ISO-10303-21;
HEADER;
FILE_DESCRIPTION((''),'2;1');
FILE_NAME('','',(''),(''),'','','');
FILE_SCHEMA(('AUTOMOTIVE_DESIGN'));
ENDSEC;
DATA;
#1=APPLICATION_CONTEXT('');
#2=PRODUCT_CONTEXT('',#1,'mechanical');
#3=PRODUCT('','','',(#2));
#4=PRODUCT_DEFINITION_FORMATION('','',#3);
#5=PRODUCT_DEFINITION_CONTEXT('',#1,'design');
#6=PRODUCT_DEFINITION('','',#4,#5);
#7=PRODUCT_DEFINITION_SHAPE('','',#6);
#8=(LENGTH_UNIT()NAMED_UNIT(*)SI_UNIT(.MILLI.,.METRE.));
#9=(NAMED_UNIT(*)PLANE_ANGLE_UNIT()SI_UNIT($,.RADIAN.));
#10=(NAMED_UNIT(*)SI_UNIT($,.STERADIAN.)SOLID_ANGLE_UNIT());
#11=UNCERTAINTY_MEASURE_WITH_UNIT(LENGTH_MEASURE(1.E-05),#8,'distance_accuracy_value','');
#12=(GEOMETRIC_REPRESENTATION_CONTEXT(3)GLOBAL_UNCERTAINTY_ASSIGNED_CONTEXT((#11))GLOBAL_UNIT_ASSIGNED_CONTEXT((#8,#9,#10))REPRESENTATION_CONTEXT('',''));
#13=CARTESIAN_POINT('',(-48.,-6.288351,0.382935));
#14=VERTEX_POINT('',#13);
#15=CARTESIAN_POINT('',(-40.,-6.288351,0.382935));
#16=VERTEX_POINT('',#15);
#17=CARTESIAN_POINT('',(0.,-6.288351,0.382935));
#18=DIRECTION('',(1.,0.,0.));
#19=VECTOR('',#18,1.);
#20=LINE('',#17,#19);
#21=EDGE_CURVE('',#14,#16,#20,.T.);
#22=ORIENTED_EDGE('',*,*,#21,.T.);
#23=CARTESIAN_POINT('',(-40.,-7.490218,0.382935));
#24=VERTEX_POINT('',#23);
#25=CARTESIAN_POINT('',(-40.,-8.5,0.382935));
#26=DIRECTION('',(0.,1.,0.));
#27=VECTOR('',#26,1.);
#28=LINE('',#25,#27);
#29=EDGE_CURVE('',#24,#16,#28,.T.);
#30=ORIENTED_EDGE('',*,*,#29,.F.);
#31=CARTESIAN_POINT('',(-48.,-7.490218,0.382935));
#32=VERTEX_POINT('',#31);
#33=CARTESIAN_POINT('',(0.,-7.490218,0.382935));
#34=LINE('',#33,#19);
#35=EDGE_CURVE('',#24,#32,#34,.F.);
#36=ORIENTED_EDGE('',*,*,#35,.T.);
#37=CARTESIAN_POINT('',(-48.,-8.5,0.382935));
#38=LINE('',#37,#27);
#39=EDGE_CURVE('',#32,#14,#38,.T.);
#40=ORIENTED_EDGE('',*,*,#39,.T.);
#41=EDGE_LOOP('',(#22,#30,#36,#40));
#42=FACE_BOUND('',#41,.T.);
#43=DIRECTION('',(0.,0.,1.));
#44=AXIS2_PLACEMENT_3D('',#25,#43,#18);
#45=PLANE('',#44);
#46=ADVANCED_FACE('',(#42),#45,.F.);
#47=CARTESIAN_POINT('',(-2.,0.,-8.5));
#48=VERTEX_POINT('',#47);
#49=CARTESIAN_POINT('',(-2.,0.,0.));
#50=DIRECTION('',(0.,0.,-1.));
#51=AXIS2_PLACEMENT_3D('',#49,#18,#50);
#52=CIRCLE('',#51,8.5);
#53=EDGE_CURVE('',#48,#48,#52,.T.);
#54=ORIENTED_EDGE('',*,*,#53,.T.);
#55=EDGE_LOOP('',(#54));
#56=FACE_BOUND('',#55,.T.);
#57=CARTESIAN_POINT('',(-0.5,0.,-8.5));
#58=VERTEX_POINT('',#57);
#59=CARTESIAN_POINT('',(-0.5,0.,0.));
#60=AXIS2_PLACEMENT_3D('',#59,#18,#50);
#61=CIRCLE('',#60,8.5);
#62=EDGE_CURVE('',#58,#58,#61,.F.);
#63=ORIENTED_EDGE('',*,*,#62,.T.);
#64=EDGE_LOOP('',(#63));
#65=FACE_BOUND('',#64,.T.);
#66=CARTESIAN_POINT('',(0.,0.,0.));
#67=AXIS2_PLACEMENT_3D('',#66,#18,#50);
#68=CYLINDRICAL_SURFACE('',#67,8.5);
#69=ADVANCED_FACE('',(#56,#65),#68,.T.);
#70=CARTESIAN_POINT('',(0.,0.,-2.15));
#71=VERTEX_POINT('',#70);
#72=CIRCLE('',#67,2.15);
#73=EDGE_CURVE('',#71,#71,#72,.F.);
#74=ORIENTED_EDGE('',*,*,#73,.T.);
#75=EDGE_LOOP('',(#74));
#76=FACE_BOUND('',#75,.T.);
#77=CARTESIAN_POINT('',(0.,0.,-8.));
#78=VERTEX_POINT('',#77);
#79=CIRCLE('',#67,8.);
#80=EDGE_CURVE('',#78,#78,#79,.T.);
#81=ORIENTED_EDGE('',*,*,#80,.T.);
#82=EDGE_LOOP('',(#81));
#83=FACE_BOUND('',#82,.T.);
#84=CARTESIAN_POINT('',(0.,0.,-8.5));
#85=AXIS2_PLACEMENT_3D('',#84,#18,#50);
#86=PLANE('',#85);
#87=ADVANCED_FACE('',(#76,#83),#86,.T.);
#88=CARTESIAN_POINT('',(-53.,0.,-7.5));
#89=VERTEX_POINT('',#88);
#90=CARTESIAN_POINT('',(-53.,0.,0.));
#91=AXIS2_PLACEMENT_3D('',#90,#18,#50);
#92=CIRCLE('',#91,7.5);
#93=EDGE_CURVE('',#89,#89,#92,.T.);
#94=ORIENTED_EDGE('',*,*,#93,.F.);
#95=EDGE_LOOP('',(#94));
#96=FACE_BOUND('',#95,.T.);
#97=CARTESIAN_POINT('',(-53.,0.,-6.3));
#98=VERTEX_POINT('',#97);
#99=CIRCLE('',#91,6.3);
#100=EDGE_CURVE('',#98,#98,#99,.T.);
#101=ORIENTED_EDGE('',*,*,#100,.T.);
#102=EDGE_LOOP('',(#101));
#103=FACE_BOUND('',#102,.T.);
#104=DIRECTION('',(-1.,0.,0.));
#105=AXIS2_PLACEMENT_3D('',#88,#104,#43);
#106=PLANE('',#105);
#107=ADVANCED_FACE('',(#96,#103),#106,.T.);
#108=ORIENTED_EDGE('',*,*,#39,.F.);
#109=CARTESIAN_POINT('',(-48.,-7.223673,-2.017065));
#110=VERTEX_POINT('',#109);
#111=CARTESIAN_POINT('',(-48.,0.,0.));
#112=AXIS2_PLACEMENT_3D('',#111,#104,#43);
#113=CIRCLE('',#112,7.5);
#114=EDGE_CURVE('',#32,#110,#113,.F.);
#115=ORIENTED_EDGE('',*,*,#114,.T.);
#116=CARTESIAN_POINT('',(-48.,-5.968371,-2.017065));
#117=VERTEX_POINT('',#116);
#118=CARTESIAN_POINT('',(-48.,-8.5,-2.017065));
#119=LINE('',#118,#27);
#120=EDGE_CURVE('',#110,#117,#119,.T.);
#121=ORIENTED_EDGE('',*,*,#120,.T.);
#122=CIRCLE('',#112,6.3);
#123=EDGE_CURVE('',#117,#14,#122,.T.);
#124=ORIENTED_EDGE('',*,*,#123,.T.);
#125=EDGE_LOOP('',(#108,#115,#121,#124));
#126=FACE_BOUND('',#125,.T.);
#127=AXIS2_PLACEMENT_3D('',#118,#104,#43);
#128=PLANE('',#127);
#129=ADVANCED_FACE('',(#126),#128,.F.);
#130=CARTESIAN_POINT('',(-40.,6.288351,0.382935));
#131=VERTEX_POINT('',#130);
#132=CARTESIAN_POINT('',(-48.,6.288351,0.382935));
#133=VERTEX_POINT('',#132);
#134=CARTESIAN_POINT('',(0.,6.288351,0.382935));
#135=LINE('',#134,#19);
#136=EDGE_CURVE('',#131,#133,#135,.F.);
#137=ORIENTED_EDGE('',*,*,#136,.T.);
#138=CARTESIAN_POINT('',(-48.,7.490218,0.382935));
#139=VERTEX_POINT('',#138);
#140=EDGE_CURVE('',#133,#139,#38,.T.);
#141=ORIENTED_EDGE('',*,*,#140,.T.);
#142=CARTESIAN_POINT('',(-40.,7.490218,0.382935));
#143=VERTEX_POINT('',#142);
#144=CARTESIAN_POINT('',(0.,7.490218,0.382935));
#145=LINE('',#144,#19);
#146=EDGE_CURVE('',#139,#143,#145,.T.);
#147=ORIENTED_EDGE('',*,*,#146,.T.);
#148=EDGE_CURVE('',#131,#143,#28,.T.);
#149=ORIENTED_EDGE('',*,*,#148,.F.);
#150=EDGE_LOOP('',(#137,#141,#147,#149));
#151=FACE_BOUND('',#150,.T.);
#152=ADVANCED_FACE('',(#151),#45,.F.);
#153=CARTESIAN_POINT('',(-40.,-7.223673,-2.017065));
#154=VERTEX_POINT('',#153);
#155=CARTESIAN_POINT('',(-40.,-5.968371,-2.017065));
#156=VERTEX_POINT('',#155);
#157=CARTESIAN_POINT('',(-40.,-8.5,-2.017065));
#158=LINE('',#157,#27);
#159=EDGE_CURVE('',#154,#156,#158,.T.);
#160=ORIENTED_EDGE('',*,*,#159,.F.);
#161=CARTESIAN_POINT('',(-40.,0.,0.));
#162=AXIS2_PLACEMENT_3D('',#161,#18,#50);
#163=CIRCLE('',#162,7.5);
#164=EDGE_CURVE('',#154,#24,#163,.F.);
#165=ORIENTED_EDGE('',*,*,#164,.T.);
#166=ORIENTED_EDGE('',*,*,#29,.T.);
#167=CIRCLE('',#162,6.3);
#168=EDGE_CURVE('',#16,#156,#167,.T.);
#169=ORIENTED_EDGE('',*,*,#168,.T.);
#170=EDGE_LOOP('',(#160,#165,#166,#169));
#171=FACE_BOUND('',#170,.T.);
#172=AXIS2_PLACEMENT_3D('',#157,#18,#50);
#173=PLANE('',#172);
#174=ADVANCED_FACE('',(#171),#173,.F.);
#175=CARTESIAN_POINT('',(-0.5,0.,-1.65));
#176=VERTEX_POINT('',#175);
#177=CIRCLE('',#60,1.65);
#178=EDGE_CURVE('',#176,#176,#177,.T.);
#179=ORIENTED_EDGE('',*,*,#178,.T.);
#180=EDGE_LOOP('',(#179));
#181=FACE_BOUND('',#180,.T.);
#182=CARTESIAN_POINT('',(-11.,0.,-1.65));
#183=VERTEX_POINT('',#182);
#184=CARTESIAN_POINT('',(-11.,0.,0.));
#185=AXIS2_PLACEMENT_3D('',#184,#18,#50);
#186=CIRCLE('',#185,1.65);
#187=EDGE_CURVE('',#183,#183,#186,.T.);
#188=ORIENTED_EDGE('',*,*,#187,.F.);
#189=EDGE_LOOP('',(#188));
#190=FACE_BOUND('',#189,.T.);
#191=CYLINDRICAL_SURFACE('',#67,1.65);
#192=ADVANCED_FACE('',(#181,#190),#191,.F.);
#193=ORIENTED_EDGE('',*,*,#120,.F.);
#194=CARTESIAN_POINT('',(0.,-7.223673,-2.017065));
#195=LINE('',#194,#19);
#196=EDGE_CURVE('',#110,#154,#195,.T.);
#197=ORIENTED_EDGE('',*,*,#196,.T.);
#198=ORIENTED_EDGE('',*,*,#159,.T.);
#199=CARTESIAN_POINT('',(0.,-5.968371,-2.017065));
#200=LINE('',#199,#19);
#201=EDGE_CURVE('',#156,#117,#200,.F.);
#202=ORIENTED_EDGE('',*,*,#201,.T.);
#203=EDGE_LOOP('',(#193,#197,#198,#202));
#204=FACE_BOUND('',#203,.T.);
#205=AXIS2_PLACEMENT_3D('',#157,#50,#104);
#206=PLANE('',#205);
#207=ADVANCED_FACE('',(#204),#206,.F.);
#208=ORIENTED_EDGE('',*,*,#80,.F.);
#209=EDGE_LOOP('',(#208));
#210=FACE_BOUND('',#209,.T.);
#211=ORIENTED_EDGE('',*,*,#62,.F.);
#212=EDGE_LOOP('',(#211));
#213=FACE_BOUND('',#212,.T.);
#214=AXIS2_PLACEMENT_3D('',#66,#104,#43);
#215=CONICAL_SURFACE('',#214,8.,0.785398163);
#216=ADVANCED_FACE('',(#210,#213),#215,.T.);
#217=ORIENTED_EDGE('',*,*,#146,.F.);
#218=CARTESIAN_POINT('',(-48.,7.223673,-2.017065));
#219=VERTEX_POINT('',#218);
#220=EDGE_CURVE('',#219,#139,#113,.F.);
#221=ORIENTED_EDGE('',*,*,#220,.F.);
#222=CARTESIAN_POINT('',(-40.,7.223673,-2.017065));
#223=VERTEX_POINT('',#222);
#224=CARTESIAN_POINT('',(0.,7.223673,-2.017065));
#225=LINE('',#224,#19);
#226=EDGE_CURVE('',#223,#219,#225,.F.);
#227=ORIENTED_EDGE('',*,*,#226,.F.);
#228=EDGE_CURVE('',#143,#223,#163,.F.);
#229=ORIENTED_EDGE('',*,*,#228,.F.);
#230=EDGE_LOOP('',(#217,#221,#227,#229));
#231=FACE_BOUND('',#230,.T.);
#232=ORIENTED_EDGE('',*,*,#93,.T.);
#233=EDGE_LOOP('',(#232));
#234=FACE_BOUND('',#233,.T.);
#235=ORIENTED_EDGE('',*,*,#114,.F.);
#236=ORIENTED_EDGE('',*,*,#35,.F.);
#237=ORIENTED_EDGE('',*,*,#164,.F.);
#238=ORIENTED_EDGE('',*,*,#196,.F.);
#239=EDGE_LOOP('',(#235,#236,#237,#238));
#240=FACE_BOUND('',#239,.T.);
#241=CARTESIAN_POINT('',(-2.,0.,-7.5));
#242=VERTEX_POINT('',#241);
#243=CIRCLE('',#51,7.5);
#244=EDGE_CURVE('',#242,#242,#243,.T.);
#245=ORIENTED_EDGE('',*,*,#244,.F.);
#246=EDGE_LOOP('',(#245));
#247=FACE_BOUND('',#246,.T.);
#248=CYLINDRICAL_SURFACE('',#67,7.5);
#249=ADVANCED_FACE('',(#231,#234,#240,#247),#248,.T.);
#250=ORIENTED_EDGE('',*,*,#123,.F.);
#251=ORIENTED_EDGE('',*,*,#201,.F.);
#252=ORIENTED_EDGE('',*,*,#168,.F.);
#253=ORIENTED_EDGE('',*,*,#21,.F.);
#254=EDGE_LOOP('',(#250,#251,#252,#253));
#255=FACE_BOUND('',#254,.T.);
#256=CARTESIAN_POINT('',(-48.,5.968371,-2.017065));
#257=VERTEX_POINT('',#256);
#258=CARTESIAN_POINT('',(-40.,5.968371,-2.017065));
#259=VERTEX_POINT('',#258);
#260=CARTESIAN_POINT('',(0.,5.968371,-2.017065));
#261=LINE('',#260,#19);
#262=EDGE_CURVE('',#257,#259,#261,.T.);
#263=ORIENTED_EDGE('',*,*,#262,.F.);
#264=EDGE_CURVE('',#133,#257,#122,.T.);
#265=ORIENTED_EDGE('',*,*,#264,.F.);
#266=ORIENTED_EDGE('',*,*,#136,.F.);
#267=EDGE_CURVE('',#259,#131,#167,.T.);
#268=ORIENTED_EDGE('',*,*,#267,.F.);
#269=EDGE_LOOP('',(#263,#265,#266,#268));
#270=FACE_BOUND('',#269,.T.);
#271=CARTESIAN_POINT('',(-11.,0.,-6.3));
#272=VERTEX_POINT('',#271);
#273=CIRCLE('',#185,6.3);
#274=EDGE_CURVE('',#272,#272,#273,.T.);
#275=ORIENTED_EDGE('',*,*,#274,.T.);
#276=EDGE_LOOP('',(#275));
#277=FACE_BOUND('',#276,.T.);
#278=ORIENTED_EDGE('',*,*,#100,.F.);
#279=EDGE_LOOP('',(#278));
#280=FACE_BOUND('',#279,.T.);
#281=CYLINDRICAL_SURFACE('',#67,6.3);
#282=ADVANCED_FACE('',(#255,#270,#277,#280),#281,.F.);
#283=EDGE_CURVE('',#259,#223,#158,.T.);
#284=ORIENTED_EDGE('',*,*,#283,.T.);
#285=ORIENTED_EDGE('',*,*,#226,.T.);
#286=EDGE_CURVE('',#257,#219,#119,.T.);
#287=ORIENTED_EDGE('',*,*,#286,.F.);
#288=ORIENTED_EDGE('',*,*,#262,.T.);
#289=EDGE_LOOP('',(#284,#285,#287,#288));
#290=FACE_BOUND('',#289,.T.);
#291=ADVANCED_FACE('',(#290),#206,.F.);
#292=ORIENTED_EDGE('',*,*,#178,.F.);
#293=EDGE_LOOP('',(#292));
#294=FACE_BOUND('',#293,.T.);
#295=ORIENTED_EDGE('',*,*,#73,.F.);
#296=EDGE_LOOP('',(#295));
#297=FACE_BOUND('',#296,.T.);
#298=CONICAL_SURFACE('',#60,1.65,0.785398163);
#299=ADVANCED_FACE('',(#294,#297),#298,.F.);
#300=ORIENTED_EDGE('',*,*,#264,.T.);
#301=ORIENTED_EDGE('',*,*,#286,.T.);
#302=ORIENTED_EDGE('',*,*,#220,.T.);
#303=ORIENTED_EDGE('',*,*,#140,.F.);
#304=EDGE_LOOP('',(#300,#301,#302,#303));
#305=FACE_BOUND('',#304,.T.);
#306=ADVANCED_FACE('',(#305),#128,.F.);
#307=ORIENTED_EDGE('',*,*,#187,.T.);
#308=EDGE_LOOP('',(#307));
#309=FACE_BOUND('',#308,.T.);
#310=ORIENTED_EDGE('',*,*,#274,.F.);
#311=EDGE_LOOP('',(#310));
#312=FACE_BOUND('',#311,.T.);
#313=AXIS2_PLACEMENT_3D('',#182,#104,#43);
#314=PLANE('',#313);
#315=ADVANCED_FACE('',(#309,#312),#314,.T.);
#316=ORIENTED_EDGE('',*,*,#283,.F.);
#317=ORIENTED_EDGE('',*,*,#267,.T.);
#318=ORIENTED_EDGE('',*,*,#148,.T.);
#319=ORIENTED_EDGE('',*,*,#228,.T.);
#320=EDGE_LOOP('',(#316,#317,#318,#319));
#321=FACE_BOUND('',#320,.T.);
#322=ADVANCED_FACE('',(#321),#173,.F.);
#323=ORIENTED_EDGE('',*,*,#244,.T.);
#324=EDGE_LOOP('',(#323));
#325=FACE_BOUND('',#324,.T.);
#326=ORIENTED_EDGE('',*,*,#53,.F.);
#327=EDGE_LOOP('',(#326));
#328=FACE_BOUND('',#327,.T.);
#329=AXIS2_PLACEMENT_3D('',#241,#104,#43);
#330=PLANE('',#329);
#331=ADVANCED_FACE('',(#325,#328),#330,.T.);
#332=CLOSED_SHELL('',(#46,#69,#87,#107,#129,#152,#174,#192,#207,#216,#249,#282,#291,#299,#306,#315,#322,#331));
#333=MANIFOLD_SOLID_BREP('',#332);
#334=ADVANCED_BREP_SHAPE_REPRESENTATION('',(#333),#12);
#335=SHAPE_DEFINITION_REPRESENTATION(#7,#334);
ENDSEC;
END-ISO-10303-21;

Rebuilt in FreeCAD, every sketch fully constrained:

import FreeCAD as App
import Part
import Sketcher

V = App.Vector


def edges_at(feature, points):
    """Names of the edges that pass closest to the given points."""
    edges = feature.Shape.Edges
    near = lambda p: min(range(len(edges)), key=lambda i: edges[i].distToShape(Part.Vertex(*p))[0])
    return sorted({f"Edge{near(p) + 1}" for p in points})

doc = App.newDocument("Part")
params = doc.addObject("Spreadsheet::Sheet", "Params")
for row, (alias, value) in enumerate([
    ("sketch1_width", "11 mm"),
    ("sketch1_width2", "2 mm"),
    ("sketch1_width3", "51 mm"),
    ("sketch1_height", "1 mm"),
    ("sketch1_height2", "1.2 mm"),
    ("revolution_angle", "360 deg"),
    ("chamfer_size", "0.5 mm"),
    ("sketch2_width", "8 mm"),
    ("sketch2_height", "2.4 mm"),
], start=1):
    params.set(f"A{row}", alias)
    params.set(f"B{row}", "=" + value)
    params.setAlias(f"B{row}", alias)

body = doc.addObject("PartDesign::Body", "Body")

sketch1 = body.newObject("Sketcher::SketchObject", "Sketch")
sketch1.AttachmentSupport = (doc.getObject("XZ_Plane"), [""])
sketch1.MapMode = "FlatFace"
sketch1.addGeometry(Part.LineSegment(V(-11, -1.6, 0), V(0, -1.6, 0)), False)
sketch1.addGeometry(Part.LineSegment(V(0, -1.6, 0), V(0, -8.5, 0)), False)
sketch1.addGeometry(Part.LineSegment(V(0, -8.5, 0), V(-2, -8.5, 0)), False)
sketch1.addGeometry(Part.LineSegment(V(-2, -8.5, 0), V(-2, -7.5, 0)), False)
sketch1.addGeometry(Part.LineSegment(V(-2, -7.5, 0), V(-53, -7.5, 0)), False)
sketch1.addGeometry(Part.LineSegment(V(-53, -7.5, 0), V(-53, -6.3, 0)), False)
sketch1.addGeometry(Part.LineSegment(V(-53, -6.3, 0), V(-11, -6.3, 0)), False)
sketch1.addGeometry(Part.LineSegment(V(-11, -6.3, 0), V(-11, -1.6, 0)), False)
sketch1.addConstraint(Sketcher.Constraint("Coincident", 0, 2, 1, 1))
sketch1.addConstraint(Sketcher.Constraint("Coincident", 1, 2, 2, 1))
sketch1.addConstraint(Sketcher.Constraint("Coincident", 2, 2, 3, 1))
sketch1.addConstraint(Sketcher.Constraint("Coincident", 3, 2, 4, 1))
sketch1.addConstraint(Sketcher.Constraint("Coincident", 4, 2, 5, 1))
sketch1.addConstraint(Sketcher.Constraint("Coincident", 5, 2, 6, 1))
sketch1.addConstraint(Sketcher.Constraint("Coincident", 6, 2, 7, 1))
sketch1.addConstraint(Sketcher.Constraint("Coincident", 7, 2, 0, 1))
sketch1.addConstraint(Sketcher.Constraint("Horizontal", 0))
sketch1.addConstraint(Sketcher.Constraint("Vertical", 1))
sketch1.addConstraint(Sketcher.Constraint("Horizontal", 2))
sketch1.addConstraint(Sketcher.Constraint("Vertical", 3))
sketch1.addConstraint(Sketcher.Constraint("Horizontal", 4))
sketch1.addConstraint(Sketcher.Constraint("Vertical", 5))
sketch1.addConstraint(Sketcher.Constraint("Horizontal", 6))
sketch1.addConstraint(Sketcher.Constraint("Vertical", 7))
sketch1.addConstraint(Sketcher.Constraint("PointOnObject", 0, 2, -2))
sketch1.addConstraint(Sketcher.Constraint("DistanceX", 0, 1, 0, 2, 11.0))
sketch1.addConstraint(Sketcher.Constraint("DistanceX", 2, 2, 2, 1, 2.0))
sketch1.addConstraint(Sketcher.Constraint("DistanceX", 4, 2, 4, 1, 51.0))
sketch1.addConstraint(Sketcher.Constraint("DistanceY", 3, 1, 3, 2, 1.0))
sketch1.addConstraint(Sketcher.Constraint("DistanceY", 5, 1, 5, 2, 1.2))
sketch1.addConstraint(Sketcher.Constraint("DistanceY", 1, 2, 1, 1, 6.85))
sketch1.addConstraint(Sketcher.Constraint("DistanceY", 1, 2, -1, 1, 8.5))
sketch1.setExpression("Constraints[17]", "Params.sketch1_width")
sketch1.setExpression("Constraints[18]", "Params.sketch1_width2")
sketch1.setExpression("Constraints[19]", "Params.sketch1_width3")
sketch1.setExpression("Constraints[20]", "Params.sketch1_height")
sketch1.setExpression("Constraints[21]", "Params.sketch1_height2")
revolution = body.newObject("PartDesign::Revolution", "Revolution")
revolution.Profile = sketch1
revolution.ReferenceAxis = (sketch1, ["H_Axis"])
revolution.setExpression("Angle", "Params.revolution_angle")
doc.recompute()

chamfer = body.newObject("PartDesign::Chamfer", "Chamfer")
chamfer.Base = (revolution, edges_at(revolution, [(0, 0, 8.5), (0, 0, 1.65)]))
chamfer.setExpression("Size", "Params.chamfer_size")

sketch2 = body.newObject("Sketcher::SketchObject", "Sketch001")
sketch2.AttachmentSupport = (doc.getObject("XZ_Plane"), [""])
sketch2.MapMode = "FlatFace"
sketch2.addGeometry(Part.LineSegment(V(-48, -2, 0), V(-48, 0.4, 0)), False)
sketch2.addGeometry(Part.LineSegment(V(-48, 0.4, 0), V(-40, 0.4, 0)), False)
sketch2.addGeometry(Part.LineSegment(V(-40, 0.4, 0), V(-40, -2, 0)), False)
sketch2.addGeometry(Part.LineSegment(V(-40, -2, 0), V(-48, -2, 0)), False)
sketch2.addConstraint(Sketcher.Constraint("Coincident", 0, 2, 1, 1))
sketch2.addConstraint(Sketcher.Constraint("Coincident", 1, 2, 2, 1))
sketch2.addConstraint(Sketcher.Constraint("Coincident", 2, 2, 3, 1))
sketch2.addConstraint(Sketcher.Constraint("Coincident", 3, 2, 0, 1))
sketch2.addConstraint(Sketcher.Constraint("Vertical", 0))
sketch2.addConstraint(Sketcher.Constraint("Horizontal", 1))
sketch2.addConstraint(Sketcher.Constraint("Vertical", 2))
sketch2.addConstraint(Sketcher.Constraint("Horizontal", 3))
sketch2.addConstraint(Sketcher.Constraint("DistanceX", 1, 1, 1, 2, 8.0))
sketch2.addConstraint(Sketcher.Constraint("DistanceY", 0, 1, 0, 2, 2.4))
sketch2.addConstraint(Sketcher.Constraint("DistanceX", 0, 2, -1, 1, 48.0))
sketch2.addConstraint(Sketcher.Constraint("DistanceY", -1, 1, 0, 2, 0.382935))
sketch2.setExpression("Constraints[8]", "Params.sketch2_width")
sketch2.setExpression("Constraints[9]", "Params.sketch2_height")
pocket1 = body.newObject("PartDesign::Pocket", "Pocket")
pocket1.Profile = sketch2
pocket1.Type = "ThroughAll"
pocket1.Midplane = True

doc.recompute()
